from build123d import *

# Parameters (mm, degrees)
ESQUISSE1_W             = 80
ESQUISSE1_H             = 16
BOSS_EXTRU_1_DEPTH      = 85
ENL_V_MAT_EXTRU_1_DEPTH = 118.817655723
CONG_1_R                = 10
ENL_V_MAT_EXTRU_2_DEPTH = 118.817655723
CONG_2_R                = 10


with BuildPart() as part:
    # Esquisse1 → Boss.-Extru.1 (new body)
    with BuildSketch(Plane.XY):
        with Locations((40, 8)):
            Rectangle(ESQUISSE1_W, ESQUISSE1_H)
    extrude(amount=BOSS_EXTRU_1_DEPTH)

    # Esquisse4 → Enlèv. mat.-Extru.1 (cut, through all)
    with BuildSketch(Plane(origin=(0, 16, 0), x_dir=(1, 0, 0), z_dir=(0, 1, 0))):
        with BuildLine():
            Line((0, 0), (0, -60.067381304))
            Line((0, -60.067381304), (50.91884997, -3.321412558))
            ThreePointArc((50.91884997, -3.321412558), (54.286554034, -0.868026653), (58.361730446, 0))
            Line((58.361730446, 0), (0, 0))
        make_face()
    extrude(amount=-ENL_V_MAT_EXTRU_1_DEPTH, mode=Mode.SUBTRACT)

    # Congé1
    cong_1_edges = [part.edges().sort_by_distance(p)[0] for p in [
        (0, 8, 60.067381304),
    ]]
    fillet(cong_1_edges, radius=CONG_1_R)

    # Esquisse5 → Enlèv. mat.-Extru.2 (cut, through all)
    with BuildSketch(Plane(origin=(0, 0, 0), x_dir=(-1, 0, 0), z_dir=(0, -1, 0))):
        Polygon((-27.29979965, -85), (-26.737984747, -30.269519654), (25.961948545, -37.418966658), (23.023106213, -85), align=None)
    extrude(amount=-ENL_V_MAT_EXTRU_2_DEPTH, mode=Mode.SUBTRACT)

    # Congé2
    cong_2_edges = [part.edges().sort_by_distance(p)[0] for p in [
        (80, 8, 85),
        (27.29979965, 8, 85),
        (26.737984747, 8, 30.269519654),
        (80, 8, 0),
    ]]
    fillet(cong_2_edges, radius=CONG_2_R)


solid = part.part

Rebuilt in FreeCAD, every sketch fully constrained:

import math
import FreeCAD as App
import Part
import Sketcher
Q = App.Units.Quantity


def edges_at(feature, points):
    """Names of the edges that pass closest to the given points."""
    edges = feature.Shape.Edges
    near = lambda p: min(range(len(edges)), key=lambda i: edges[i].distToShape(Part.Vertex(*p))[0])
    return sorted({f"Edge{near(p) + 1}" for p in points})

doc = App.newDocument("Part")
body = doc.addObject("PartDesign::Body", "Body")

# Sketch on XY plane
sketch1 = body.newObject("Sketcher::SketchObject", "Sketch")
sketch1.AttachmentSupport = (doc.getObject("XY_Plane"), [""])
sketch1.MapMode = "FlatFace"
sketch1.addGeometry(Part.LineSegment(App.Vector(0, 16, 0), App.Vector(0, 0, 0)), False)
sketch1.addGeometry(Part.LineSegment(App.Vector(0, 0, 0), App.Vector(80, 0, 0)), False)
sketch1.addGeometry(Part.LineSegment(App.Vector(80, 0, 0), App.Vector(80, 16, 0)), False)
sketch1.addGeometry(Part.LineSegment(App.Vector(80, 16, 0), App.Vector(0, 16, 0)), False)
sketch1.addConstraint(Sketcher.Constraint("Coincident", 0, 2, 1, 1))
sketch1.addConstraint(Sketcher.Constraint("Coincident", 1, 2, 2, 1))
sketch1.addConstraint(Sketcher.Constraint("Coincident", 2, 2, 3, 1))
sketch1.addConstraint(Sketcher.Constraint("Coincident", 3, 2, 0, 1))
sketch1.addConstraint(Sketcher.Constraint("Vertical", 0))
sketch1.addConstraint(Sketcher.Constraint("Horizontal", 1))
sketch1.addConstraint(Sketcher.Constraint("Vertical", 2))
sketch1.addConstraint(Sketcher.Constraint("Horizontal", 3))
sketch1.addConstraint(Sketcher.Constraint("Coincident", 0, 2, -1, 1))
sketch1.addConstraint(Sketcher.Constraint("DistanceX", 1, 1, 1, 2, Q("80 mm")))
sketch1.addConstraint(Sketcher.Constraint("DistanceY", 0, 2, 0, 1, Q("16 mm")))
pad1 = body.newObject("PartDesign::Pad", "Pad")
pad1.Profile = sketch1
pad1.Length = 85

# Sketch on XZ plane
sketch2 = body.newObject("Sketcher::SketchObject", "Sketch001")
sketch2.AttachmentSupport = (doc.getObject("XZ_Plane"), [""])
sketch2.MapMode = "FlatFace"
sketch2.AttachmentOffset = App.Placement(App.Vector(0, 0, -16), App.Rotation())
sketch2.addGeometry(Part.LineSegment(App.Vector(0, 0, 0), App.Vector(0, 60.067381, 0)), False)
sketch2.addGeometry(Part.LineSegment(App.Vector(0, 60.067381, 0), App.Vector(50.91885, 3.321413, 0)), False)
sketch2.addGeometry(Part.ArcOfCircle(Part.Circle(App.Vector(58.36173, 10, 0), App.Vector(0, 0, 1), 10), math.radians(-138.097984), math.radians(-90)), False)
sketch2.addGeometry(Part.LineSegment(App.Vector(58.36173, 0, 0), App.Vector(0, 0, 0)), False)
sketch2.addConstraint(Sketcher.Constraint("Coincident", 0, 2, 1, 1))
sketch2.addConstraint(Sketcher.Constraint("Tangent", 1, 2, 2, 1))
sketch2.addConstraint(Sketcher.Constraint("Tangent", 2, 2, 3, 1))
sketch2.addConstraint(Sketcher.Constraint("Coincident", 3, 2, 0, 1))
sketch2.addConstraint(Sketcher.Constraint("Vertical", 0))
sketch2.addConstraint(Sketcher.Constraint("Horizontal", 3))
sketch2.addConstraint(Sketcher.Constraint("Coincident", 3, 2, -1, 1))
sketch2.addConstraint(Sketcher.Constraint("Radius", 2, Q("10 mm")))
sketch2.addConstraint(Sketcher.Constraint("DistanceX", 3, 2, 3, 1, Q("58.36173 mm")))
sketch2.addConstraint(Sketcher.Constraint("DistanceY", 0, 1, 0, 2, Q("60.067381 mm")))
pocket1 = body.newObject("PartDesign::Pocket", "Pocket")
pocket1.Profile = sketch2
pocket1.Type = "ThroughAll"
pocket1.Reversed = True
doc.recompute()

fillet = body.newObject("PartDesign::Fillet", "Fillet")
fillet.Base = (pocket1, edges_at(pocket1, [(0, 8, 60.067)]))
fillet.Radius = 10

# Sketch on XZ plane
sketch3 = body.newObject("Sketcher::SketchObject", "Sketch002")
sketch3.AttachmentSupport = (doc.getObject("XZ_Plane"), [""])
sketch3.MapMode = "FlatFace"
sketch3.addGeometry(Part.LineSegment(App.Vector(26.737985, 30.26952, 0), App.Vector(27.2998, 85, 0)), False)
sketch3.addGeometry(Part.LineSegment(App.Vector(27.2998, 85, 0), App.Vector(-23.023106, 85, 0)), False)
sketch3.addGeometry(Part.LineSegment(App.Vector(-23.023106, 85, 0), App.Vector(-25.961949, 37.418967, 0)), False)
sketch3.addGeometry(Part.LineSegment(App.Vector(-25.961949, 37.418967, 0), App.Vector(26.737985, 30.26952, 0)), False)
sketch3.addConstraint(Sketcher.Constraint("Coincident", 0, 2, 1, 1))
sketch3.addConstraint(Sketcher.Constraint("Coincident", 1, 2, 2, 1))
sketch3.addConstraint(Sketcher.Constraint("Coincident", 2, 2, 3, 1))
sketch3.addConstraint(Sketcher.Constraint("Coincident", 3, 2, 0, 1))
sketch3.addConstraint(Sketcher.Constraint("Horizontal", 1))
sketch3.addConstraint(Sketcher.Constraint("DistanceY", -1, 1, 0, 2, Q("85 mm")))
sketch3.addConstraint(Sketcher.Constraint("DistanceX", -1, 1, 0, 2, Q("27.2998 mm")))
sketch3.addConstraint(Sketcher.Constraint("Distance", 3, Q("53.182681 mm")))
sketch3.addConstraint(Sketcher.Constraint("DistanceX", 1, 2, 1, 1, Q("50.322906 mm")))
sketch3.addConstraint(Sketcher.Constraint("DistanceX", 2, 2, -1, 1, Q("25.961949 mm")))
sketch3.addConstraint(Sketcher.Constraint("DistanceY", -1, 1, 3, 2, Q("30.26952 mm")))
sketch3.addConstraint(Sketcher.Constraint("DistanceX", 1, 2, 3, 2, Q("49.761091 mm")))
pocket2 = body.newObject("PartDesign::Pocket", "Pocket001")
pocket2.Profile = sketch3
pocket2.Type = "ThroughAll"
doc.recompute()

fillet2 = body.newObject("PartDesign::Fillet", "Fillet001")
fillet2.Base = (pocket2, edges_at(pocket2, [
    (80, 8, 85),
    (27.3, 8, 85),
    (26.738, 8, 30.27),
    (80, 8, 0),
]))
fillet2.Radius = 10

doc.recompute()
